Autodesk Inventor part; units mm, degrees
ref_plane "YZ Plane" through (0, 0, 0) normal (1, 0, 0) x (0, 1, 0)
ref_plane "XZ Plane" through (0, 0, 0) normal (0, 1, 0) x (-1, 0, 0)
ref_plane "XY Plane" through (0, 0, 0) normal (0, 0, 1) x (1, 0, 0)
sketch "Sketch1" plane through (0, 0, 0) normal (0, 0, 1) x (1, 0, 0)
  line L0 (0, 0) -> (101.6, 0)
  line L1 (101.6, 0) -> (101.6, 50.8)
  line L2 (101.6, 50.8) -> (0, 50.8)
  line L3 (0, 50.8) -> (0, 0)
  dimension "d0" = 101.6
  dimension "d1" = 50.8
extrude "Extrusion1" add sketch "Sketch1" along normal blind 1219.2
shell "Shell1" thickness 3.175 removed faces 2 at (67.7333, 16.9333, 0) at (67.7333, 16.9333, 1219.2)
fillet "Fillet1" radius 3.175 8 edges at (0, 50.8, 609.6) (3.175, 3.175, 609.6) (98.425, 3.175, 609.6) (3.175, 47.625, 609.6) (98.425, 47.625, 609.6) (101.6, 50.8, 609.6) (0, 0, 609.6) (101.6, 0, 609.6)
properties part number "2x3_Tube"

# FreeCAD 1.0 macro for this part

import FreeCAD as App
import Part
import Sketcher

V = App.Vector
Q = App.Units.Quantity


def edges_at(feature, points):
    """Names of the edges that pass closest to the given points."""
    edges = feature.Shape.Edges
    near = lambda p: min(range(len(edges)), key=lambda i: edges[i].distToShape(Part.Vertex(*p))[0])
    return sorted({f"Edge{near(p) + 1}" for p in points})


def faces_at(feature, points):
    """Names of the faces that lie closest to the given points."""
    faces = feature.Shape.Faces
    near = lambda p: min(range(len(faces)), key=lambda i: faces[i].distToShape(Part.Vertex(*p))[0])
    return sorted({f"Face{near(p) + 1}" for p in points})

doc = App.newDocument("Part")
body = doc.addObject("PartDesign::Body", "Body")

# Sketch on XY plane
sketch1 = body.newObject("Sketcher::SketchObject", "Sketch")
sketch1.AttachmentSupport = (doc.getObject("XY_Plane"), [""])
sketch1.MapMode = "FlatFace"
sketch1.addGeometry([
    Part.LineSegment(V(0, 51, 0), V(0, 0, 0)),
    Part.LineSegment(V(0, 0, 0), V(102, 0, 0)),
    Part.LineSegment(V(102, 0, 0), V(102, 51, 0)),
    Part.LineSegment(V(102, 51, 0), V(0, 51, 0)),
], False)
sketch1.addConstraint([
    Sketcher.Constraint("Coincident", 0, 2, 1, 1),
    Sketcher.Constraint("Coincident", 1, 2, 2, 1),
    Sketcher.Constraint("Coincident", 2, 2, 3, 1),
    Sketcher.Constraint("Coincident", 3, 2, 0, 1),
    Sketcher.Constraint("Vertical", 0),
    Sketcher.Constraint("Horizontal", 1),
    Sketcher.Constraint("Vertical", 2),
    Sketcher.Constraint("Horizontal", 3),
    Sketcher.Constraint("Coincident", 0, 2, -1, 1),
    Sketcher.Constraint("DistanceX", 1, 1, 1, 2, Q("4 in")),
    Sketcher.Constraint("DistanceY", 0, 2, 0, 1, Q("2 in")),
])
pad1 = body.newObject("PartDesign::Pad", "Pad")
pad1.Profile = sketch1
pad1.Length = Q("48 in")
doc.recompute()

thickness = body.newObject("PartDesign::Thickness", "Thickness")
thickness.Base = (pad1, faces_at(pad1, [(67.733, 16.933, 0), (67.733, 16.933, 1219.2)]))
thickness.Value = Q("0.125 in")
thickness.Reversed = True
thickness.Join = "Intersection"
doc.recompute()

fillet = body.newObject("PartDesign::Fillet", "Fillet")
fillet.Base = (thickness, edges_at(thickness, [
    (0, 50.8, 609.6),
    (3.175, 3.175, 609.6),
    (98.425, 3.175, 609.6),
    (3.175, 47.625, 609.6),
    (98.425, 47.625, 609.6),
    (101.6, 50.8, 609.6),
    (0, 0, 609.6),
    (101.6, 0, 609.6),
]))
fillet.Radius = Q("0.125 in")

doc.recompute()
